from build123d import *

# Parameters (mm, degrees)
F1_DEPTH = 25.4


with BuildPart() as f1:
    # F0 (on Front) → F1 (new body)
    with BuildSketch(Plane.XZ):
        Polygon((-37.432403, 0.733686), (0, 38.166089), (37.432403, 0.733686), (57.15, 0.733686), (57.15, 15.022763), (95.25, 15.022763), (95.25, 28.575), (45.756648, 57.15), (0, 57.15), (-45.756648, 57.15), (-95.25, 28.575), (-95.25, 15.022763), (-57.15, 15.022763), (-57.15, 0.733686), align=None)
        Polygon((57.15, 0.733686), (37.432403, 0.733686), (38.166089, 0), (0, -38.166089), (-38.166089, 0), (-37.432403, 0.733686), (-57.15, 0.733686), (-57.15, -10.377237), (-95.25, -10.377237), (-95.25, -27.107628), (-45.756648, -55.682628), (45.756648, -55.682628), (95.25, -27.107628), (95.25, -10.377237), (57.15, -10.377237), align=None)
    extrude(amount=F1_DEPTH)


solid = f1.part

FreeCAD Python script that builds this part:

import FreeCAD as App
import Part
import Sketcher

V = App.Vector
Q = App.Units.Quantity


def add_polygon(sketch, points):
    """Adds a closed chain of lines whose ends are joined by coincident constraints."""
    first, n = sketch.GeometryCount, len(points)
    for a, b in zip(points, points[1:] + points[:1]):
        sketch.addGeometry(Part.LineSegment(App.Vector(*a, 0), App.Vector(*b, 0)), False)
    for i in range(n):
        sketch.addConstraint(Sketcher.Constraint("Coincident", first + i, 2, first + (i + 1) % n, 1))

doc = App.newDocument("Part")
body = doc.addObject("PartDesign::Body", "Body")

# Sketch on XZ plane
sketch1 = body.newObject("Sketcher::SketchObject", "Sketch")
sketch1.AttachmentSupport = (doc.getObject("XZ_Plane"), [""])
sketch1.MapMode = "FlatFace"
add_polygon(sketch1, [(57.15, 15.022763), (95.25, 15.022763), (95.25, 28.575), (45.756648, 57.15), (-45.756648, 57.15), (-95.25, 28.575), (-95.25, 15.022763), (-57.15, 15.022763), (-57.15, -10.377237), (-95.25, -10.377237), (-95.25, -27.107628), (-45.756648, -55.682628), (45.756648, -55.682628), (95.25, -27.107628), (95.25, -10.377237), (57.15, -10.377237)])  # lines 0-15
add_polygon(sketch1, [(0, 38.166089), (38.166089, 0), (0, -38.166089), (-38.166089, 0)])  # lines 16-19
sketch1.addConstraint([
    Sketcher.Constraint("Horizontal", 0),
    Sketcher.Constraint("Vertical", 1),
    Sketcher.Constraint("Horizontal", 3),
    Sketcher.Constraint("Vertical", 5),
    Sketcher.Constraint("Horizontal", 6),
    Sketcher.Constraint("Vertical", 7),
    Sketcher.Constraint("Horizontal", 8),
    Sketcher.Constraint("Vertical", 9),
    Sketcher.Constraint("Horizontal", 11),
    Sketcher.Constraint("Vertical", 13),
    Sketcher.Constraint("Horizontal", 14),
    Sketcher.Constraint("Vertical", 15),
    Sketcher.Constraint("Symmetric", 16, 2, 18, 2, -1, 1),
    Sketcher.Constraint("Symmetric", 17, 2, 19, 2, -1, 1),
    Sketcher.Constraint("Symmetric", 1, 2, 4, 2, -2),
    Sketcher.Constraint("Symmetric", 9, 2, 12, 2, -2),
    Sketcher.Constraint("Symmetric", 7, 2, 14, 2, -2),
    Sketcher.Constraint("PointOnObject", 16, 2, -1),
    Sketcher.Constraint("PointOnObject", 17, 2, -2),
    Sketcher.Constraint("Parallel", 2, 10),
    Sketcher.Constraint("Parallel", 4, 12),
    Sketcher.Constraint("Perpendicular", 16, 17),
    Sketcher.Constraint("Horizontal", 0, 2, 5, 2),
    Sketcher.Constraint("Vertical", 5, 2, 8, 2),
    Sketcher.Constraint("Vertical", 3, 2, 10, 2),
    Sketcher.Constraint("Vertical", 2, 2, 11, 2),
    Sketcher.Constraint("DistanceY", 7, 2, 7, 1, Q("1 in")),
    Sketcher.Constraint("DistanceX", 0, 1, 0, 2, Q("1.5 in")),
    Sketcher.Constraint("Angle", 2, Q("150 deg")),
    Sketcher.Constraint("DistanceX", 6, 2, 0, 2, Q("6 in")),
    Sketcher.Constraint("Distance", 2, Q("2.25 in")),
    Sketcher.Constraint("DistanceY", -1, 1, 2, 2, Q("2.25 in")),
    Sketcher.Constraint("Distance", 16, Q("2.125 in")),
    Sketcher.Constraint("DistanceY", 9, 2, 9, 1, 16.730391),
    Sketcher.Constraint("DistanceY", 1, 1, 1, 2, 13.552237),
])
pad1 = body.newObject("PartDesign::Pad", "Pad")
pad1.Profile = sketch1
pad1.Length = Q("1 in")

doc.recompute()
